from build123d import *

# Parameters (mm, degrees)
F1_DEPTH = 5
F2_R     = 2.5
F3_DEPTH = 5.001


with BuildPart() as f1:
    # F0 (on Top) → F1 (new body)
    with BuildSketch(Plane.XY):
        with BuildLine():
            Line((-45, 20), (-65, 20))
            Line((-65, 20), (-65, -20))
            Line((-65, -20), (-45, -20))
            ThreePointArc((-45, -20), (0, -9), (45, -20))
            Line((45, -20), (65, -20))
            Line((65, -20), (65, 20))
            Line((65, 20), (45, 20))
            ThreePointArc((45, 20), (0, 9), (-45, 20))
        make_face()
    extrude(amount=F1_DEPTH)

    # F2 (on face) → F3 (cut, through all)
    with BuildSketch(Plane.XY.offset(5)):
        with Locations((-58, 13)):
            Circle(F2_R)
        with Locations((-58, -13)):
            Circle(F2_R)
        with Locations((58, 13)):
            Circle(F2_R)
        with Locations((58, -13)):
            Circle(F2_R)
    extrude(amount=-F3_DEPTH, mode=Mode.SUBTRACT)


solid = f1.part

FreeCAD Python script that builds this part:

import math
import FreeCAD as App
import Part
import Sketcher
from FreeCAD import Vector

doc = App.newDocument("Part")
body = doc.addObject("PartDesign::Body", "Body")

# Sketch on XY plane
sketch1 = doc.addObject("Sketcher::SketchObject", "Sketch")
body.addObject(sketch1)
sketch1.AttachmentSupport = (doc.XY_Plane, [""])
sketch1.MapMode = "FlatFace"
sketch1.addGeometry(Part.LineSegment(Vector(-45, 20, 0), Vector(-65, 20, 0)), False)
sketch1.addGeometry(Part.LineSegment(Vector(-65, 20, 0), Vector(-65, -20, 0)), False)
sketch1.addGeometry(Part.LineSegment(Vector(-65, -20, 0), Vector(-45, -20, 0)), False)
sketch1.addGeometry(Part.ArcOfCircle(Part.Circle(Vector(0, -107, 0), Vector(0, 0, 1), 98), math.radians(63), math.radians(117)), False)
sketch1.addGeometry(Part.LineSegment(Vector(45, -20, 0), Vector(65, -20, 0)), False)
sketch1.addGeometry(Part.LineSegment(Vector(65, -20, 0), Vector(65, 20, 0)), False)
sketch1.addGeometry(Part.LineSegment(Vector(65, 20, 0), Vector(45, 20, 0)), False)
sketch1.addGeometry(Part.ArcOfCircle(Part.Circle(Vector(0, 107, 0), Vector(0, 0, 1), 98), math.radians(-117), math.radians(-63)), False)
sketch1.addConstraint(Sketcher.Constraint("Coincident", 0, 2, 1, 1))
sketch1.addConstraint(Sketcher.Constraint("Coincident", 1, 2, 2, 1))
sketch1.addConstraint(Sketcher.Constraint("Coincident", 2, 2, 3, 2))
sketch1.addConstraint(Sketcher.Constraint("Coincident", 3, 1, 4, 1))
sketch1.addConstraint(Sketcher.Constraint("Coincident", 4, 2, 5, 1))
sketch1.addConstraint(Sketcher.Constraint("Coincident", 5, 2, 6, 1))
sketch1.addConstraint(Sketcher.Constraint("Coincident", 6, 2, 7, 2))
sketch1.addConstraint(Sketcher.Constraint("Coincident", 7, 1, 0, 1))
sketch1.addConstraint(Sketcher.Constraint("Horizontal", 0))
sketch1.addConstraint(Sketcher.Constraint("Vertical", 1))
sketch1.addConstraint(Sketcher.Constraint("Horizontal", 2))
sketch1.addConstraint(Sketcher.Constraint("Horizontal", 4))
sketch1.addConstraint(Sketcher.Constraint("Vertical", 5))
sketch1.addConstraint(Sketcher.Constraint("Horizontal", 6))
sketch1.addConstraint(Sketcher.Constraint("Equal", 3, 7))
sketch1.addConstraint(Sketcher.Constraint("Symmetric", 3, 3, 7, 3, -1, 1))
sketch1.addConstraint(Sketcher.Constraint("Symmetric", 0, 2, 4, 2, -1, 1))
sketch1.addConstraint(Sketcher.Constraint("Symmetric", 2, 2, 3, 1, -2))
sketch1.addConstraint(Sketcher.Constraint("Horizontal", 0, 2, 5, 2))
sketch1.addConstraint(Sketcher.Constraint("DistanceX", 0, 2, 0, 1, 20.0))
sketch1.addConstraint(Sketcher.Constraint("DistanceY", 1, 2, 1, 1, 40.0))
sketch1.addConstraint(Sketcher.Constraint("DistanceX", 0, 2, -1, 1, 65.0))
sketch1.addConstraint(Sketcher.Constraint("Radius", 3, 97.545455))
pad1 = doc.addObject("PartDesign::Pad", "Pad")
body.addObject(pad1)
pad1.Profile = sketch1
pad1.Length = 5

# Sketch on XY plane
sketch2 = doc.addObject("Sketcher::SketchObject", "Sketch001")
body.addObject(sketch2)
sketch2.AttachmentSupport = (doc.XY_Plane, [""])
sketch2.MapMode = "FlatFace"
sketch2.AttachmentOffset = App.Placement(Vector(0, 0, 5), App.Rotation())
sketch2.addGeometry(Part.Circle(Vector(-58, 13, 0), Vector(0, 0, 1), 2.5), False)
sketch2.addGeometry(Part.Circle(Vector(-58, -13, 0), Vector(0, 0, 1), 2.5), False)
sketch2.addGeometry(Part.Circle(Vector(58, 13, 0), Vector(0, 0, 1), 2.5), False)
sketch2.addGeometry(Part.Circle(Vector(58, -13, 0), Vector(0, 0, 1), 2.5), False)
sketch2.addConstraint(Sketcher.Constraint("Equal", 0, 1))
sketch2.addConstraint(Sketcher.Constraint("Equal", 1, 2))
sketch2.addConstraint(Sketcher.Constraint("Equal", 2, 3))
sketch2.addConstraint(Sketcher.Constraint("Symmetric", 1, 3, 2, 3, -1, 1))
sketch2.addConstraint(Sketcher.Constraint("Symmetric", 0, 3, 3, 3, -1, 1))
sketch2.addConstraint(Sketcher.Constraint("Symmetric", 0, 3, 2, 3, -2))
sketch2.addConstraint(Sketcher.Constraint("Diameter", 0, 5.0))
sketch2.addConstraint(Sketcher.Constraint("DistanceX", 0, 3, -1, 1, 58.0))
sketch2.addConstraint(Sketcher.Constraint("DistanceY", -1, 1, 0, 3, 13.0))
pocket1 = doc.addObject("PartDesign::Pocket", "Pocket")
body.addObject(pocket1)
pocket1.Profile = sketch2
pocket1.Type = "ThroughAll"

doc.recompute()
